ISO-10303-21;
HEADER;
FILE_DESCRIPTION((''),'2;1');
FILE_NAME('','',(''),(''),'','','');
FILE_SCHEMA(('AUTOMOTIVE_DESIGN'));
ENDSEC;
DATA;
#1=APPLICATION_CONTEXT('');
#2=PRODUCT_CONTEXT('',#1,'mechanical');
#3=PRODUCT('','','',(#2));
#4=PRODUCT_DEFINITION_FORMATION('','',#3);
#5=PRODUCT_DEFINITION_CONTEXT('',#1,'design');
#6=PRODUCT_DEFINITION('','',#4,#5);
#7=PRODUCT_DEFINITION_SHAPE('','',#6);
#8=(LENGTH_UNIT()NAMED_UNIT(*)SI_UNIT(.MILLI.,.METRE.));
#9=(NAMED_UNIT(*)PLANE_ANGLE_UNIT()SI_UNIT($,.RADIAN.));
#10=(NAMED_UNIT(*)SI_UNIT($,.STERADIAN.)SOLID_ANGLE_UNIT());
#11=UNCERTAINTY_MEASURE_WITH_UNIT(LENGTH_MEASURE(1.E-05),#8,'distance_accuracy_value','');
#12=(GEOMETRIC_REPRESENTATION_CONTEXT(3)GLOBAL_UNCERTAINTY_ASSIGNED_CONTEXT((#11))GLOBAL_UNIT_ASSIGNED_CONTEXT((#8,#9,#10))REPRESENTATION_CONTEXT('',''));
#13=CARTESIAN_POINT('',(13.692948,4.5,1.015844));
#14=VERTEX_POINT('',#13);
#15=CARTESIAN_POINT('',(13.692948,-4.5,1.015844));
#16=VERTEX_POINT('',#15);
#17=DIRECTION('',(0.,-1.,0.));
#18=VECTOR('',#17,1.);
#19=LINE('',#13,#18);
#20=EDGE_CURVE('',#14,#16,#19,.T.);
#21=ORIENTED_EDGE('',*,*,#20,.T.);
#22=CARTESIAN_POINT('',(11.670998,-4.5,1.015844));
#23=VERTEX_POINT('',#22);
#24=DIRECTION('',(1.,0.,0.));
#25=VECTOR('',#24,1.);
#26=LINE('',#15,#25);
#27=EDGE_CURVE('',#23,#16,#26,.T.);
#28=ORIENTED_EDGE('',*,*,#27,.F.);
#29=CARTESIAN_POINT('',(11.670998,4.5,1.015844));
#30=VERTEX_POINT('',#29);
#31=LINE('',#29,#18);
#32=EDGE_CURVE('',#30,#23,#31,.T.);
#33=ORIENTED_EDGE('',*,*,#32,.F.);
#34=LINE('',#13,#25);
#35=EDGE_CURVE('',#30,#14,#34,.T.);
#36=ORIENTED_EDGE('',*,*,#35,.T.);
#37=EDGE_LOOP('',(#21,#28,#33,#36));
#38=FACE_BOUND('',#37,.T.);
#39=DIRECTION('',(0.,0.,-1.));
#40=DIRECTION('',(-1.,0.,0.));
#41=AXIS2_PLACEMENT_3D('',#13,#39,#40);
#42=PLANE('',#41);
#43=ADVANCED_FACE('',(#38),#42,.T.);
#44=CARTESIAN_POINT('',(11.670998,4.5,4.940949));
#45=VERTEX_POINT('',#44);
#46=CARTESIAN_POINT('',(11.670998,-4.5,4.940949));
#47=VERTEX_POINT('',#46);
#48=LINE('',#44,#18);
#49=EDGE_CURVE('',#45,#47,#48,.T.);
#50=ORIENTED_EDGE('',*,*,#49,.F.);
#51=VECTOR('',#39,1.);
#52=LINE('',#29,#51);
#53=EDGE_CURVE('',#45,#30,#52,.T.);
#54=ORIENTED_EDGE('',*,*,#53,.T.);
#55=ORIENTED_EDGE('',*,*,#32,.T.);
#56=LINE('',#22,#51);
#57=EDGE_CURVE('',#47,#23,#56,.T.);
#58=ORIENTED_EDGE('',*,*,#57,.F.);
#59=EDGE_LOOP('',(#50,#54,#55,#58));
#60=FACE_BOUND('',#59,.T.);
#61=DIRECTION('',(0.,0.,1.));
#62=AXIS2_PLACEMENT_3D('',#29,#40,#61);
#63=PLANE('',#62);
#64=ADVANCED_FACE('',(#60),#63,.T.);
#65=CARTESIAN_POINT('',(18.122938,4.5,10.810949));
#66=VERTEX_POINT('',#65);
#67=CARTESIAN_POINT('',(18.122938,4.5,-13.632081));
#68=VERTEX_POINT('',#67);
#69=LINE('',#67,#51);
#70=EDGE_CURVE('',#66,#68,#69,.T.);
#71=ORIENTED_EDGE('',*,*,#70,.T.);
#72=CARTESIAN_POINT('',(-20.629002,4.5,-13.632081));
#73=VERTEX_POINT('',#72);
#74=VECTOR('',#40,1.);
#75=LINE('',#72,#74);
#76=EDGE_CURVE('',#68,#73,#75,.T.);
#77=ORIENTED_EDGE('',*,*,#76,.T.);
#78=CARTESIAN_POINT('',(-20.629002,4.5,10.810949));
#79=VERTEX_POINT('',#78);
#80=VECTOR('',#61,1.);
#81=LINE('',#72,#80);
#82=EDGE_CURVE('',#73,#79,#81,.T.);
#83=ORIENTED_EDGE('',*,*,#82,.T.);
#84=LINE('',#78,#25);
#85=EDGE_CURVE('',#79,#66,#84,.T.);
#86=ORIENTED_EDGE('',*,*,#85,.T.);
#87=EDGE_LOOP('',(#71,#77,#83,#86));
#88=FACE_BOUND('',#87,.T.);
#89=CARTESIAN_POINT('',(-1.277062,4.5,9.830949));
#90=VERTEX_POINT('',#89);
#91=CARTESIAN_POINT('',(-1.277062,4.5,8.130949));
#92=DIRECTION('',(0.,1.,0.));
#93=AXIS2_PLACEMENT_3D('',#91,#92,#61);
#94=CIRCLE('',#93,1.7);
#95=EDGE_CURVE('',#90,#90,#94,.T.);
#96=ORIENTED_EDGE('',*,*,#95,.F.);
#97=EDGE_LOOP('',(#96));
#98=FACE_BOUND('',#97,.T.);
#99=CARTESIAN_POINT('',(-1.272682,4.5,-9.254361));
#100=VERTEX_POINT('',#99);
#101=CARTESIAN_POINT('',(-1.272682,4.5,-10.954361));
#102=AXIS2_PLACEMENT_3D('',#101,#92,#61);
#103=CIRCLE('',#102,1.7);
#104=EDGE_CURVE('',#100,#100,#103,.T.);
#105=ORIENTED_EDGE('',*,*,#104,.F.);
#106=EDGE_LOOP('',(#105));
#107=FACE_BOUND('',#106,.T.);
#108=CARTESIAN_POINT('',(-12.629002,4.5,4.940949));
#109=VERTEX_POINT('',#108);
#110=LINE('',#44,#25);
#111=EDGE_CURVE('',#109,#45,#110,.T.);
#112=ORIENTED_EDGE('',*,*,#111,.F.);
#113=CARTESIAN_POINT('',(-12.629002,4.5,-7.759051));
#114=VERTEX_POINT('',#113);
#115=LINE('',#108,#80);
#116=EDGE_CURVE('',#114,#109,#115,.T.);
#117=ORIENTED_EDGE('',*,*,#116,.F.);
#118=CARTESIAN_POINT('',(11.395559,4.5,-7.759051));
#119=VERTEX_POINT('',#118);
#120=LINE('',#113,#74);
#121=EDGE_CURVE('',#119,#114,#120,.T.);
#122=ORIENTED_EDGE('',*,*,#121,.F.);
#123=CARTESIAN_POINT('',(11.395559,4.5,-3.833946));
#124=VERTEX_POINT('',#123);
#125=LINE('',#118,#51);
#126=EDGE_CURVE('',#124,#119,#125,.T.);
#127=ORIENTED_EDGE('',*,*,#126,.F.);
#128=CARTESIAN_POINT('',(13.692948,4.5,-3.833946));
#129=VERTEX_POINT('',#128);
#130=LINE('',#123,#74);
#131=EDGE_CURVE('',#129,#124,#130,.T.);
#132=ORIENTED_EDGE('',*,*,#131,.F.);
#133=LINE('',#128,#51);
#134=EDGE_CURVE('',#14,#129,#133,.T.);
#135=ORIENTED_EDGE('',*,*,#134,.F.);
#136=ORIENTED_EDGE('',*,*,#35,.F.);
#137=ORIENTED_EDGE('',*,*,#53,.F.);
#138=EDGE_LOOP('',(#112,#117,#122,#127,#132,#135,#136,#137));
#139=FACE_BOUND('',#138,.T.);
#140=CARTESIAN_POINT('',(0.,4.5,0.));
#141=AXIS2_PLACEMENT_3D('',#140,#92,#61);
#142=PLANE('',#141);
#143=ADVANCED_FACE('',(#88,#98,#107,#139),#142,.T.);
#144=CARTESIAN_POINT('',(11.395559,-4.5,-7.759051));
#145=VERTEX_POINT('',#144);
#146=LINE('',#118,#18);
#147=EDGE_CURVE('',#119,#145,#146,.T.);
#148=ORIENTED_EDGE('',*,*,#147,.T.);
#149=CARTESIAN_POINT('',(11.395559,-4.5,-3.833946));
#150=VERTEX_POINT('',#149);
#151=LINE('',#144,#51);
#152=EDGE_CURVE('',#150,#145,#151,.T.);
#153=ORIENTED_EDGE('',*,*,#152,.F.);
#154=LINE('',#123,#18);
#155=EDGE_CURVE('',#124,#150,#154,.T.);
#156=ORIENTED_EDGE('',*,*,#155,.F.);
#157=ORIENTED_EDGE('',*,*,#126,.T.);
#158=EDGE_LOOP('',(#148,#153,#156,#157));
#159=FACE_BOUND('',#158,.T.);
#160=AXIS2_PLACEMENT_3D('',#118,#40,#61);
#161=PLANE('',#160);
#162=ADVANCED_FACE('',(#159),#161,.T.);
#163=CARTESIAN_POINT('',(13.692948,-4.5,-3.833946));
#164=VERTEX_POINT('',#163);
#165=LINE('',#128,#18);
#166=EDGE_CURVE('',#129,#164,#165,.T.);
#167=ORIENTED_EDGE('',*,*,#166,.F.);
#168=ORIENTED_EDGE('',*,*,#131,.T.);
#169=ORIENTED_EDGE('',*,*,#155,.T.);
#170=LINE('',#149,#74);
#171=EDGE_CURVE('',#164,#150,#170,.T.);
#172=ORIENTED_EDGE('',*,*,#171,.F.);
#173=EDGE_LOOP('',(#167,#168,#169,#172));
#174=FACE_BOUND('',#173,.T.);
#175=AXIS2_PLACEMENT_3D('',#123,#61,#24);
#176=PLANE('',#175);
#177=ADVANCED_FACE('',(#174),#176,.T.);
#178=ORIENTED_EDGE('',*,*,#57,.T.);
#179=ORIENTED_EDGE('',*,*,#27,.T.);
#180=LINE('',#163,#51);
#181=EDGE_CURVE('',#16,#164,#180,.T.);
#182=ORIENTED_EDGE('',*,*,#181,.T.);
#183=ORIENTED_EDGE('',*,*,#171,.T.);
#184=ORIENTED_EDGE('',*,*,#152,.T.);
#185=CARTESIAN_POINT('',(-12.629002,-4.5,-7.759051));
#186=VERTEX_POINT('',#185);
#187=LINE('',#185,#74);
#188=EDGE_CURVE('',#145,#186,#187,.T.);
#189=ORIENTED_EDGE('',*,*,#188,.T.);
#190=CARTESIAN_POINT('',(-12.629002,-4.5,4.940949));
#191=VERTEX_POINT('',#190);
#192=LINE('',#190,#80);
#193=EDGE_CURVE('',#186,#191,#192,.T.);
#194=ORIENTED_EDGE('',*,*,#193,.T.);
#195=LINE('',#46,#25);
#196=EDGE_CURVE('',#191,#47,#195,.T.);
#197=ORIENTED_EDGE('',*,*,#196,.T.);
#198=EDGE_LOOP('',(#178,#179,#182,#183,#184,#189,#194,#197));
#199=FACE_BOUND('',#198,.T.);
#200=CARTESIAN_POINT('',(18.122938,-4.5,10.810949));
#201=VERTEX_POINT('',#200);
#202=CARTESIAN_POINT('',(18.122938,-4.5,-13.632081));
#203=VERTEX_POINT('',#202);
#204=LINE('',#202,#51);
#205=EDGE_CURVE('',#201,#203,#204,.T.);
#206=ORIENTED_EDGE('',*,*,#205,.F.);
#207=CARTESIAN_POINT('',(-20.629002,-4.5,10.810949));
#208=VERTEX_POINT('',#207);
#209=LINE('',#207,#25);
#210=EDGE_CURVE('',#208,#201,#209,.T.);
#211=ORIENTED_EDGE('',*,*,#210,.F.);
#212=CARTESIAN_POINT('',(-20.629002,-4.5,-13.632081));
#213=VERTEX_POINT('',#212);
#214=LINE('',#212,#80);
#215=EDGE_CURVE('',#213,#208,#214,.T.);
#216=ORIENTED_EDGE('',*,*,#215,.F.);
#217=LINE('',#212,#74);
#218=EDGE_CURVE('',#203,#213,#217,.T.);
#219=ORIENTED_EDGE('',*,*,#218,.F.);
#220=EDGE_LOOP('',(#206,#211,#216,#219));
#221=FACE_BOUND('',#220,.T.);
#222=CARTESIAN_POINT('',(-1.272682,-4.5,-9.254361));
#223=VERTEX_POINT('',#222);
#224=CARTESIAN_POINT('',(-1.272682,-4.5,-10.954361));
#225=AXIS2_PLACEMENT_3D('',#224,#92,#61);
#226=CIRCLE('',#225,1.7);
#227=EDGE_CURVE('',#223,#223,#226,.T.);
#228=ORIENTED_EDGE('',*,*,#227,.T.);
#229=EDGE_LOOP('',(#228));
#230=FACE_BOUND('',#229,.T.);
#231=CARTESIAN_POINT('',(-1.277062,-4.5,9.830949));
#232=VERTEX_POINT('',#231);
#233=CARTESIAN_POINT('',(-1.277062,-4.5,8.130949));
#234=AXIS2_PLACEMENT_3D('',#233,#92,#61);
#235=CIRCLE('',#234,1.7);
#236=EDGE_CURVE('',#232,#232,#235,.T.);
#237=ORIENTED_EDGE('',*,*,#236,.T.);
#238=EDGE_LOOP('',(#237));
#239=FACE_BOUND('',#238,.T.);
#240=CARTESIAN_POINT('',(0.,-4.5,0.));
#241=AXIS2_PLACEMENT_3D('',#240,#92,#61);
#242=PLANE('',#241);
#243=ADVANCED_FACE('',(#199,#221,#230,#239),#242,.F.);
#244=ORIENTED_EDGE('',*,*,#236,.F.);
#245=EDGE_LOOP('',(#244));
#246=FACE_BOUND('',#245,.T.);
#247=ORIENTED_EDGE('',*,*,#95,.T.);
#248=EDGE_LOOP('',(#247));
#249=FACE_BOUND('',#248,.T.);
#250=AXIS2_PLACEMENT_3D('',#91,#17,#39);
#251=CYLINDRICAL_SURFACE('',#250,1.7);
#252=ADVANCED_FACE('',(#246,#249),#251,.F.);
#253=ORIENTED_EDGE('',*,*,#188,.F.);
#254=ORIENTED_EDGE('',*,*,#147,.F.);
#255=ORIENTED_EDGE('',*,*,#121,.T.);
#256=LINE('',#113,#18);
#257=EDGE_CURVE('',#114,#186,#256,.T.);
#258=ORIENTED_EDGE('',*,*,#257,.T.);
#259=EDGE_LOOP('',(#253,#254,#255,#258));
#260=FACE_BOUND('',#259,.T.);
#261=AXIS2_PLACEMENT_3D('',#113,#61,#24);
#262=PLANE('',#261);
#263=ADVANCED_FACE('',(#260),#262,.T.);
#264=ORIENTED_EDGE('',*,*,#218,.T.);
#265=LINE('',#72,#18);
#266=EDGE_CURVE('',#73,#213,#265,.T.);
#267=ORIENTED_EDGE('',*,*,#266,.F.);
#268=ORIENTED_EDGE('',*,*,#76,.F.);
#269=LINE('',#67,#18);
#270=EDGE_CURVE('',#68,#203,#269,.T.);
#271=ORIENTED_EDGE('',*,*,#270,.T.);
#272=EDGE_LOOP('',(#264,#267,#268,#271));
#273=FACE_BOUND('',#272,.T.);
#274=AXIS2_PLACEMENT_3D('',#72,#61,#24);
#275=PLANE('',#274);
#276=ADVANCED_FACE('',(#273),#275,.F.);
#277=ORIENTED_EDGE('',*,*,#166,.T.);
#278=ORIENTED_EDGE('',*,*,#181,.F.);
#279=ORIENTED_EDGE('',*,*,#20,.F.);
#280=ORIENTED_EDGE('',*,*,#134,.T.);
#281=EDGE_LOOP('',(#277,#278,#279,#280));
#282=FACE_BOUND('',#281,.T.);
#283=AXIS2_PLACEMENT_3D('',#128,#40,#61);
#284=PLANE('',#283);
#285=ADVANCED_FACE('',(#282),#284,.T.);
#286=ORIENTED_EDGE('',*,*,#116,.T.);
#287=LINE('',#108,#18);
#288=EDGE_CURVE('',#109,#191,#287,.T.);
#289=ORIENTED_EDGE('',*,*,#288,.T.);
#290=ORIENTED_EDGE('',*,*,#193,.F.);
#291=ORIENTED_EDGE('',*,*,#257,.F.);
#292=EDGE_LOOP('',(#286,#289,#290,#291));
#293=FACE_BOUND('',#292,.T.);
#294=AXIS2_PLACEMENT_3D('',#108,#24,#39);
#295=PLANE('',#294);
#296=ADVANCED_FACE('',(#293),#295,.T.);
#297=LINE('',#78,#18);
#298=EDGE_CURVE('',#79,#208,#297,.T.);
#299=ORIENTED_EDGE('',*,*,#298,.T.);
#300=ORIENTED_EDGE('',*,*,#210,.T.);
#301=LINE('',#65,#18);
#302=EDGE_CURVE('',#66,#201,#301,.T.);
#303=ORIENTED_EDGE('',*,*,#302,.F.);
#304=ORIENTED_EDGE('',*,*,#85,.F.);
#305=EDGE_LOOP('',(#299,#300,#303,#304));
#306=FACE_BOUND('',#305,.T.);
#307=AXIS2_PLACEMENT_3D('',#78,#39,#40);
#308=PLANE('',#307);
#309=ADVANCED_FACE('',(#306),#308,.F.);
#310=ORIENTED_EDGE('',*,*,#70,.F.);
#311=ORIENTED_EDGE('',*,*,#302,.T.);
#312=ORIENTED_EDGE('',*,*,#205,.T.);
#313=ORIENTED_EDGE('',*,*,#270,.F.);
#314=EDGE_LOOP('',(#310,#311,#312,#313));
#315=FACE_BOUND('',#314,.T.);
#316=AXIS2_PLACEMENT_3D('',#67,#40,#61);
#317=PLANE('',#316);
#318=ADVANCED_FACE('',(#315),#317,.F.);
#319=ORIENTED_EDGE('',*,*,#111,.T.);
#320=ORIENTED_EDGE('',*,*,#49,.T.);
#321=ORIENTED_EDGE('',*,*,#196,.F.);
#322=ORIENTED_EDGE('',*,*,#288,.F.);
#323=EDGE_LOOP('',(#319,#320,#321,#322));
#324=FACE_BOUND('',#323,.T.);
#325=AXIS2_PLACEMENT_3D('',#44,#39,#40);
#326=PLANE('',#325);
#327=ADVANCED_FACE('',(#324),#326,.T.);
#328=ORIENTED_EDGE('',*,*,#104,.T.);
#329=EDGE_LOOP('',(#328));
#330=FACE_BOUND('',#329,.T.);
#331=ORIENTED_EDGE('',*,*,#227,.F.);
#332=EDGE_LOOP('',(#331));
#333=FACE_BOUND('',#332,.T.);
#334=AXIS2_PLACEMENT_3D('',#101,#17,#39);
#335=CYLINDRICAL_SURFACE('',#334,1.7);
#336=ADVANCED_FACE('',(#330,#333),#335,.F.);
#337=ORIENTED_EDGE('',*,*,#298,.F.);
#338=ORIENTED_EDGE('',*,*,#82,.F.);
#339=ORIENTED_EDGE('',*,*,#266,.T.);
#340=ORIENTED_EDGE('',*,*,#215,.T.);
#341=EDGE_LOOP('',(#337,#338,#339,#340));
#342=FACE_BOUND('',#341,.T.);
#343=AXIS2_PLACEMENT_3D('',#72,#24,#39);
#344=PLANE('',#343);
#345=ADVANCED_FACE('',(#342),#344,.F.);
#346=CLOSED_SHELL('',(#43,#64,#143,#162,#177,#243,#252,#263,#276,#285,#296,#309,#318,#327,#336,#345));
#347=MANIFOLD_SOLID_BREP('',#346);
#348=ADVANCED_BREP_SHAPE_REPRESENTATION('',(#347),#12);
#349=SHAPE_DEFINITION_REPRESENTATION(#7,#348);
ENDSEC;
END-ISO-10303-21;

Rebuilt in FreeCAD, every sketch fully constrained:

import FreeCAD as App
import Part
import Sketcher
from FreeCAD import Vector


def add_polygon(sketch, points):
    """Adds a closed chain of lines whose ends are joined by coincident constraints."""
    first, n = sketch.GeometryCount, len(points)
    for a, b in zip(points, points[1:] + points[:1]):
        sketch.addGeometry(Part.LineSegment(App.Vector(*a, 0), App.Vector(*b, 0)), False)
    for i in range(n):
        sketch.addConstraint(Sketcher.Constraint("Coincident", first + i, 2, first + (i + 1) % n, 1))

doc = App.newDocument("Part")
body = doc.addObject("PartDesign::Body", "Body")

# Sketch on XZ plane
sketch1 = doc.addObject("Sketcher::SketchObject", "Sketch")
body.addObject(sketch1)
sketch1.AttachmentSupport = (doc.XZ_Plane, [""])
sketch1.MapMode = "FlatFace"
add_polygon(sketch1, [(-20.629002, -13.632081), (-20.629002, 10.810949), (18.122938, 10.810949), (18.122938, -13.632081)])  # lines 0-3
sketch1.addGeometry(Part.Circle(Vector(-1.277062, 8.130949, 0), Vector(0, 0, 1), 1.7), False)  # 4
add_polygon(sketch1, [(-12.629002, 4.940949), (-12.629002, -7.759051), (11.395559, -7.759051), (11.395559, -3.833946), (13.692948, -3.833946), (13.692948, 1.015844), (11.670998, 1.015844), (11.670998, 4.940949)])  # lines 5-12
sketch1.addGeometry(Part.Circle(Vector(-1.272682, -10.954361, 0), Vector(0, 0, 1), 1.7), False)  # 13
sketch1.addConstraint(Sketcher.Constraint("Vertical", 0))
sketch1.addConstraint(Sketcher.Constraint("Horizontal", 1))
sketch1.addConstraint(Sketcher.Constraint("Vertical", 2))
sketch1.addConstraint(Sketcher.Constraint("Horizontal", 3))
sketch1.addConstraint(Sketcher.Constraint("Vertical", 5))
sketch1.addConstraint(Sketcher.Constraint("Horizontal", 6))
sketch1.addConstraint(Sketcher.Constraint("Vertical", 7))
sketch1.addConstraint(Sketcher.Constraint("Horizontal", 8))
sketch1.addConstraint(Sketcher.Constraint("Vertical", 9))
sketch1.addConstraint(Sketcher.Constraint("Horizontal", 10))
sketch1.addConstraint(Sketcher.Constraint("Vertical", 11))
sketch1.addConstraint(Sketcher.Constraint("Horizontal", 12))
sketch1.addConstraint(Sketcher.Constraint("Equal", 4, 13))
sketch1.addConstraint(Sketcher.Constraint("Equal", 7, 11))
sketch1.addConstraint(Sketcher.Constraint("Diameter", 4, 3.4))
sketch1.addConstraint(Sketcher.Constraint("DistanceX", 12, 2, 12, 1, 24.3))
sketch1.addConstraint(Sketcher.Constraint("DistanceY", 5, 2, 5, 1, 12.7))
sketch1.addConstraint(Sketcher.Constraint("DistanceX", 3, 2, 5, 2, 8.0))
sketch1.addConstraint(Sketcher.Constraint("DistanceX", 4, 3, 1, 2, 19.4))
sketch1.addConstraint(Sketcher.Constraint("DistanceY", 4, 3, 0, 2, 2.68))
sketch1.addConstraint(Sketcher.Constraint("DistanceY", 5, 2, 4, 3, 15.89))
sketch1.addConstraint(Sketcher.Constraint("DistanceX", 0, 2, -1, 1, 20.629002))
sketch1.addConstraint(Sketcher.Constraint("DistanceX", 1, 1, 1, 2, 38.75194))
sketch1.addConstraint(Sketcher.Constraint("DistanceX", 6, 1, 6, 2, 24.02456))
sketch1.addConstraint(Sketcher.Constraint("DistanceX", 8, 1, 8, 2, 2.29739))
sketch1.addConstraint(Sketcher.Constraint("DistanceY", 0, 1, 0, 2, 24.44303))
sketch1.addConstraint(Sketcher.Constraint("DistanceY", 9, 1, 9, 2, 4.84979))
sketch1.addConstraint(Sketcher.Constraint("DistanceY", -1, 1, 4, 3, 8.130949))
sketch1.addConstraint(Sketcher.Constraint("DistanceY", 13, 3, -1, 1, 10.954361))
sketch1.addConstraint(Sketcher.Constraint("DistanceX", 4, 3, 13, 3, 0.00438))
pad1 = doc.addObject("PartDesign::Pad", "Pad")
body.addObject(pad1)
pad1.Profile = sketch1
pad1.Length = 9
pad1.Midplane = True

doc.recompute()
